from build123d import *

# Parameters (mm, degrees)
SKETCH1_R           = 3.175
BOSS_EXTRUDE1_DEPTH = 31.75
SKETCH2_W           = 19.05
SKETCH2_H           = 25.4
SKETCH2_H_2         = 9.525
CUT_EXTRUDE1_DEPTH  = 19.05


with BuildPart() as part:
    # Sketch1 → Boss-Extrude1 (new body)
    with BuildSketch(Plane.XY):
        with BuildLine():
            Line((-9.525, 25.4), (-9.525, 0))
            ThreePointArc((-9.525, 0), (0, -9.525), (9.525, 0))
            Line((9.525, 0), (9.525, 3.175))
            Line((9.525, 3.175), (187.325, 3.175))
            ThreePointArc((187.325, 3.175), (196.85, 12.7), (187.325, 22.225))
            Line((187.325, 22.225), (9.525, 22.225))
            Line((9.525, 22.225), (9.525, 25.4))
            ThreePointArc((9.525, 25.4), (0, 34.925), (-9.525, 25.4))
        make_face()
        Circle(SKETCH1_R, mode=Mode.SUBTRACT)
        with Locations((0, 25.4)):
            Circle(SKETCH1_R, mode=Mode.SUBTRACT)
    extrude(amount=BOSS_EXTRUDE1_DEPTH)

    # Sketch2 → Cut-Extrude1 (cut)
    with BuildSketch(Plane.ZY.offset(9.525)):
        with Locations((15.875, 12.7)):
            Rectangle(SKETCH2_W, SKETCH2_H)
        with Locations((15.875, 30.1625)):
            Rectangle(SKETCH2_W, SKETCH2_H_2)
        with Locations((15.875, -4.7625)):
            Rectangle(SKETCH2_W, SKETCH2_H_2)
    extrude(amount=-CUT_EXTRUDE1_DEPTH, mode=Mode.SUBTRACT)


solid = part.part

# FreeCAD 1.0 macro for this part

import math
import FreeCAD as App
import Part
import Sketcher
Q = App.Units.Quantity


def add_polygon(sketch, points):
    """Adds a closed chain of lines whose ends are joined by coincident constraints."""
    first, n = sketch.GeometryCount, len(points)
    for a, b in zip(points, points[1:] + points[:1]):
        sketch.addGeometry(Part.LineSegment(App.Vector(*a, 0), App.Vector(*b, 0)), False)
    for i in range(n):
        sketch.addConstraint(Sketcher.Constraint("Coincident", first + i, 2, first + (i + 1) % n, 1))

doc = App.newDocument("Part")
body = doc.addObject("PartDesign::Body", "Body")

sketch1 = body.newObject("Sketcher::SketchObject", "Sketch")
sketch1.AttachmentSupport = (doc.getObject("XY_Plane"), [""])
sketch1.MapMode = "FlatFace"
sketch1.addGeometry(Part.LineSegment(App.Vector(-9.525, 25.4, 0), App.Vector(-9.525, 0, 0)), False)
sketch1.addGeometry(Part.ArcOfCircle(Part.Circle(App.Vector(0, 0, 0), App.Vector(0, 0, 1), 9.525), math.radians(180), math.radians(360)), False)
sketch1.addGeometry(Part.LineSegment(App.Vector(9.525, 0, 0), App.Vector(9.525, 3.175, 0)), False)
sketch1.addGeometry(Part.LineSegment(App.Vector(9.525, 3.175, 0), App.Vector(187.325, 3.175, 0)), False)
sketch1.addGeometry(Part.ArcOfCircle(Part.Circle(App.Vector(187.325, 12.7, 0), App.Vector(0, 0, 1), 9.525), math.radians(-90), math.radians(90)), False)
sketch1.addGeometry(Part.LineSegment(App.Vector(187.325, 22.225, 0), App.Vector(9.525, 22.225, 0)), False)
sketch1.addGeometry(Part.LineSegment(App.Vector(9.525, 22.225, 0), App.Vector(9.525, 25.4, 0)), False)
sketch1.addGeometry(Part.ArcOfCircle(Part.Circle(App.Vector(0, 25.4, 0), App.Vector(0, 0, 1), 9.525), math.radians(0), math.radians(180)), False)
sketch1.addGeometry(Part.Circle(App.Vector(0, 0, 0), App.Vector(0, 0, 1), 3.175), False)
sketch1.addGeometry(Part.Circle(App.Vector(0, 25.4, 0), App.Vector(0, 0, 1), 3.175), False)
sketch1.addConstraint(Sketcher.Constraint("Tangent", 0, 2, 1, 1))
sketch1.addConstraint(Sketcher.Constraint("Tangent", 1, 2, 2, 1))
sketch1.addConstraint(Sketcher.Constraint("Coincident", 2, 2, 3, 1))
sketch1.addConstraint(Sketcher.Constraint("Tangent", 3, 2, 4, 1))
sketch1.addConstraint(Sketcher.Constraint("Tangent", 4, 2, 5, 1))
sketch1.addConstraint(Sketcher.Constraint("Coincident", 5, 2, 6, 1))
sketch1.addConstraint(Sketcher.Constraint("Tangent", 6, 2, 7, 1))
sketch1.addConstraint(Sketcher.Constraint("Tangent", 7, 2, 0, 1))
sketch1.addConstraint(Sketcher.Constraint("Vertical", 0))
sketch1.addConstraint(Sketcher.Constraint("Vertical", 2))
sketch1.addConstraint(Sketcher.Constraint("Horizontal", 3))
sketch1.addConstraint(Sketcher.Constraint("Horizontal", 5))
sketch1.addConstraint(Sketcher.Constraint("Vertical", 6))
sketch1.addConstraint(Sketcher.Constraint("Coincident", 1, 3, -1, 1))
sketch1.addConstraint(Sketcher.Constraint("Coincident", 8, 3, -1, 1))
sketch1.addConstraint(Sketcher.Constraint("Coincident", 9, 3, 7, 3))
sketch1.addConstraint(Sketcher.Constraint("Equal", 1, 4))
sketch1.addConstraint(Sketcher.Constraint("Equal", 4, 7))
sketch1.addConstraint(Sketcher.Constraint("Equal", 8, 9))
sketch1.addConstraint(Sketcher.Constraint("Equal", 2, 6))
sketch1.addConstraint(Sketcher.Constraint("Diameter", 8, Q("0.25 in")))
sketch1.addConstraint(Sketcher.Constraint("DistanceX", 3, 1, 3, 2, Q("7 in")))
sketch1.addConstraint(Sketcher.Constraint("DistanceY", 0, 2, 0, 1, Q("1 in")))
sketch1.addConstraint(Sketcher.Constraint("Radius", 1, Q("0.375 in")))
pad1 = body.newObject("PartDesign::Pad", "Pad")
pad1.Profile = sketch1
pad1.Length = Q("1.25 in")

sketch2 = body.newObject("Sketcher::SketchObject", "Sketch001")
sketch2.AttachmentSupport = (doc.getObject("YZ_Plane"), [""])
sketch2.MapMode = "FlatFace"
sketch2.AttachmentOffset = App.Placement(App.Vector(0, 0, -0.375 * 25.4), App.Rotation())
add_polygon(sketch2, [(34.925, 25.4), (34.925, 6.35), (-9.525, 6.35), (-9.525, 25.4)])
sketch2.addConstraint(Sketcher.Constraint("Vertical", 0))
sketch2.addConstraint(Sketcher.Constraint("Horizontal", 1))
sketch2.addConstraint(Sketcher.Constraint("Vertical", 2))
sketch2.addConstraint(Sketcher.Constraint("Horizontal", 3))
sketch2.addConstraint(Sketcher.Constraint("DistanceY", -1, 1, 2, 2, Q("1 in")))
sketch2.addConstraint(Sketcher.Constraint("DistanceX", 1, 2, 1, 1, Q("1.75 in")))
sketch2.addConstraint(Sketcher.Constraint("DistanceY", 0, 2, 0, 1, Q("0.75 in")))
sketch2.addConstraint(Sketcher.Constraint("DistanceX", -1, 1, 0, 2, Q("1.375 in")))
pocket1 = body.newObject("PartDesign::Pocket", "Pocket")
pocket1.Profile = sketch2
pocket1.Length = Q("0.75 in")
pocket1.Reversed = True

doc.recompute()
